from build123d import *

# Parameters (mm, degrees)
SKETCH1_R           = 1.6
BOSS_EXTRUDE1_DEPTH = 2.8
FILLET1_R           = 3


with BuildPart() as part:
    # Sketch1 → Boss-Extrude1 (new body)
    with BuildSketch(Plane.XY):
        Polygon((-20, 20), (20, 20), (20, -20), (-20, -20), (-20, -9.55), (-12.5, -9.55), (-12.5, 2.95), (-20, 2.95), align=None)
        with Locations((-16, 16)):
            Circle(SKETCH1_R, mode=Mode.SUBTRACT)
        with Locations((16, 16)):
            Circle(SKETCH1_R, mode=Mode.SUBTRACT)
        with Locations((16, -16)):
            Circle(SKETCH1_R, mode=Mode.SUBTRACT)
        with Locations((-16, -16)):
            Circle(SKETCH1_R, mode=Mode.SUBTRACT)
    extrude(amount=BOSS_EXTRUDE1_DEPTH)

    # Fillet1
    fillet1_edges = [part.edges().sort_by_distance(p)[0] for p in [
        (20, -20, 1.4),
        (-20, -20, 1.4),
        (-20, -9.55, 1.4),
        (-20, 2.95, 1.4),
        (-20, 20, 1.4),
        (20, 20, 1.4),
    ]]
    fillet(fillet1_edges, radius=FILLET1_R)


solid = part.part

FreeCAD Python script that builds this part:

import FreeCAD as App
import Part
import Sketcher
from FreeCAD import Vector


def edges_at(feature, points):
    """Names of the edges that pass closest to the given points."""
    edges = feature.Shape.Edges
    near = lambda p: min(range(len(edges)), key=lambda i: edges[i].distToShape(Part.Vertex(*p))[0])
    return sorted({f"Edge{near(p) + 1}" for p in points})


def add_polygon(sketch, points):
    """Adds a closed chain of lines whose ends are joined by coincident constraints."""
    first, n = sketch.GeometryCount, len(points)
    for a, b in zip(points, points[1:] + points[:1]):
        sketch.addGeometry(Part.LineSegment(App.Vector(*a, 0), App.Vector(*b, 0)), False)
    for i in range(n):
        sketch.addConstraint(Sketcher.Constraint("Coincident", first + i, 2, first + (i + 1) % n, 1))

doc = App.newDocument("Part")
body = doc.addObject("PartDesign::Body", "Body")

# Sketch on XY plane
sketch1 = body.newObject("Sketcher::SketchObject", "Sketch")
sketch1.AttachmentSupport = (doc.getObject("XY_Plane"), [""])
sketch1.MapMode = "FlatFace"
add_polygon(sketch1, [(20, 20), (-20, 20), (-20, 3), (-12.5, 3), (-12.5, -9.6), (-20, -9.6), (-20, -20), (20, -20)])  # lines 0-7
sketch1.addGeometry(Part.Circle(Vector(16, -16, 0), Vector(0, 0, 1), 1.6), False)  # 8
sketch1.addGeometry(Part.Circle(Vector(-16, -16, 0), Vector(0, 0, 1), 1.6), False)  # 9
sketch1.addGeometry(Part.Circle(Vector(16, 16, 0), Vector(0, 0, 1), 1.6), False)  # 10
sketch1.addGeometry(Part.Circle(Vector(-16, 16, 0), Vector(0, 0, 1), 1.6), False)  # 11
sketch1.addConstraint([
    Sketcher.Constraint("Horizontal", 0),
    Sketcher.Constraint("Vertical", 1),
    Sketcher.Constraint("Horizontal", 2),
    Sketcher.Constraint("Vertical", 3),
    Sketcher.Constraint("Horizontal", 4),
    Sketcher.Constraint("Vertical", 5),
    Sketcher.Constraint("Horizontal", 6),
    Sketcher.Constraint("Vertical", 7),
    Sketcher.Constraint("Equal", 8, 9),
    Sketcher.Constraint("Equal", 9, 10),
    Sketcher.Constraint("Equal", 10, 11),
    Sketcher.Constraint("Symmetric", 9, 3, 10, 3, -1, 1),
    Sketcher.Constraint("Symmetric", 8, 3, 11, 3, -1, 1),
    Sketcher.Constraint("Symmetric", 0, 2, 6, 2, -1, 1),
    Sketcher.Constraint("Symmetric", 8, 3, 9, 3, -2),
    Sketcher.Constraint("Vertical", 1, 2, 4, 2),
    Sketcher.Constraint("Equal", 6, 7),
    Sketcher.Constraint("Diameter", 8, 3.2),
    Sketcher.Constraint("DistanceX", 0, 2, 0, 1, 40.0),
    Sketcher.Constraint("DistanceX", 2, 1, 2, 2, 7.5),
    Sketcher.Constraint("DistanceY", 3, 2, 3, 1, 12.5),
    Sketcher.Constraint("DistanceX", -1, 1, 8, 3, 16.0),
    Sketcher.Constraint("DistanceY", 8, 3, -1, 1, 16.0),
    Sketcher.Constraint("DistanceY", 1, 2, 1, 1, 17.05),
])
pad1 = body.newObject("PartDesign::Pad", "Pad")
pad1.Profile = sketch1
pad1.Length = 2.8
doc.recompute()

fillet = body.newObject("PartDesign::Fillet", "Fillet")
fillet.Base = (pad1, edges_at(pad1, [
    (20, -20, 1.4),
    (-20, -20, 1.4),
    (-20, -9.55, 1.4),
    (-20, 2.95, 1.4),
    (-20, 20, 1.4),
    (20, 20, 1.4),
]))
fillet.Radius = 3

doc.recompute()
